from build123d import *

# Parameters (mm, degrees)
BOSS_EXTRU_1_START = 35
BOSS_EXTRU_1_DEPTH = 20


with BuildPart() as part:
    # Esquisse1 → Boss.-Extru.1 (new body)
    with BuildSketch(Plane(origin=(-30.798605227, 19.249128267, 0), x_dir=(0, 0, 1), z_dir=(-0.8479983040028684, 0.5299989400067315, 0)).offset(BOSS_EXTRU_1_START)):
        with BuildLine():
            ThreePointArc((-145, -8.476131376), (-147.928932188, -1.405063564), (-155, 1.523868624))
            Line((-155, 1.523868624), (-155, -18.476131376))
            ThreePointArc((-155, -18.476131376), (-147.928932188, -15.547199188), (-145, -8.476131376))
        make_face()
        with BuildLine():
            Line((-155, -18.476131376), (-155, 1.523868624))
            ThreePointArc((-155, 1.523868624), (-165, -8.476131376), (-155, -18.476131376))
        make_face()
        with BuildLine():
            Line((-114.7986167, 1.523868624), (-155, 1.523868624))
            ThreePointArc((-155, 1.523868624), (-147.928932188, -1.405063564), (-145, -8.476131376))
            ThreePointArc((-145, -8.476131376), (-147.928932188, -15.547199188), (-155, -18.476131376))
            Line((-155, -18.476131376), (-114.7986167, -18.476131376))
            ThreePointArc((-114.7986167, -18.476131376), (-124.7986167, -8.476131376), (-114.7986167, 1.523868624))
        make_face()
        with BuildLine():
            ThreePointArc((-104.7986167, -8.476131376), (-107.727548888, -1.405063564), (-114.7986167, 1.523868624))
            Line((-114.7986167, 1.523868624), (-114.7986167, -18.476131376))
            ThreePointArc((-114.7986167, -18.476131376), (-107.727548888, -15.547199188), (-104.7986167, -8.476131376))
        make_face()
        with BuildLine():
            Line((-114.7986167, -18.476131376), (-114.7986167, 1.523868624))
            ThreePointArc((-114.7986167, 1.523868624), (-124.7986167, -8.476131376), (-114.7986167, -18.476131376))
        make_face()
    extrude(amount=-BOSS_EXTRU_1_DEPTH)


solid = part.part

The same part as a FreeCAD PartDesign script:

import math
import FreeCAD as App
import Part
import Sketcher

doc = App.newDocument("Part")
body = doc.addObject("PartDesign::Body", "Body")

sketch1 = body.newObject("Sketcher::SketchObject", "Sketch")
sketch1.Placement = App.Placement(App.Vector(-60.478546, 37.799091, 0), App.Rotation(App.Vector(0, 0, 1), App.Vector(0.52999894, 0.847998304, 0), App.Vector(-0.847998304, 0.52999894, 0), "ZXY"))
sketch1.addGeometry(Part.LineSegment(App.Vector(-155, -18, 0), App.Vector(-115, -18, 0)), False)
sketch1.addGeometry(Part.ArcOfCircle(Part.Circle(App.Vector(-115, -8, 0), App.Vector(0, 0, 1), 10), math.radians(-90), math.radians(0)), False)
sketch1.addGeometry(Part.ArcOfCircle(Part.Circle(App.Vector(-115, -8, 0), App.Vector(0, 0, 1), 10), math.radians(0), math.radians(90)), False)
sketch1.addGeometry(Part.LineSegment(App.Vector(-115, 2, 0), App.Vector(-155, 2, 0)), False)
sketch1.addGeometry(Part.ArcOfCircle(Part.Circle(App.Vector(-155, -8, 0), App.Vector(0, 0, 1), 10), math.radians(90), math.radians(270)), False)
sketch1.addConstraint(Sketcher.Constraint("Tangent", 0, 2, 1, 1))
sketch1.addConstraint(Sketcher.Constraint("Tangent", 1, 2, 2, 1))
sketch1.addConstraint(Sketcher.Constraint("Tangent", 2, 2, 3, 1))
sketch1.addConstraint(Sketcher.Constraint("Tangent", 3, 2, 4, 1))
sketch1.addConstraint(Sketcher.Constraint("Tangent", 4, 2, 0, 1))
sketch1.addConstraint(Sketcher.Constraint("Horizontal", 0))
sketch1.addConstraint(Sketcher.Constraint("Horizontal", 3))
sketch1.addConstraint(Sketcher.Constraint("Equal", 1, 2))
sketch1.addConstraint(Sketcher.Constraint("Horizontal", 4, 3, 1, 2))
sketch1.addConstraint(Sketcher.Constraint("Radius", 1, 10.0))
sketch1.addConstraint(Sketcher.Constraint("DistanceX", 4, 3, -1, 1, 155.0))
sketch1.addConstraint(Sketcher.Constraint("DistanceX", 0, 1, 0, 2, 40.201383))
sketch1.addConstraint(Sketcher.Constraint("DistanceY", 1, 3, -1, 1, 8.476131))
pad1 = body.newObject("PartDesign::Pad", "Pad")
pad1.Profile = sketch1
pad1.Length = 20
pad1.Reversed = True

doc.recompute()
